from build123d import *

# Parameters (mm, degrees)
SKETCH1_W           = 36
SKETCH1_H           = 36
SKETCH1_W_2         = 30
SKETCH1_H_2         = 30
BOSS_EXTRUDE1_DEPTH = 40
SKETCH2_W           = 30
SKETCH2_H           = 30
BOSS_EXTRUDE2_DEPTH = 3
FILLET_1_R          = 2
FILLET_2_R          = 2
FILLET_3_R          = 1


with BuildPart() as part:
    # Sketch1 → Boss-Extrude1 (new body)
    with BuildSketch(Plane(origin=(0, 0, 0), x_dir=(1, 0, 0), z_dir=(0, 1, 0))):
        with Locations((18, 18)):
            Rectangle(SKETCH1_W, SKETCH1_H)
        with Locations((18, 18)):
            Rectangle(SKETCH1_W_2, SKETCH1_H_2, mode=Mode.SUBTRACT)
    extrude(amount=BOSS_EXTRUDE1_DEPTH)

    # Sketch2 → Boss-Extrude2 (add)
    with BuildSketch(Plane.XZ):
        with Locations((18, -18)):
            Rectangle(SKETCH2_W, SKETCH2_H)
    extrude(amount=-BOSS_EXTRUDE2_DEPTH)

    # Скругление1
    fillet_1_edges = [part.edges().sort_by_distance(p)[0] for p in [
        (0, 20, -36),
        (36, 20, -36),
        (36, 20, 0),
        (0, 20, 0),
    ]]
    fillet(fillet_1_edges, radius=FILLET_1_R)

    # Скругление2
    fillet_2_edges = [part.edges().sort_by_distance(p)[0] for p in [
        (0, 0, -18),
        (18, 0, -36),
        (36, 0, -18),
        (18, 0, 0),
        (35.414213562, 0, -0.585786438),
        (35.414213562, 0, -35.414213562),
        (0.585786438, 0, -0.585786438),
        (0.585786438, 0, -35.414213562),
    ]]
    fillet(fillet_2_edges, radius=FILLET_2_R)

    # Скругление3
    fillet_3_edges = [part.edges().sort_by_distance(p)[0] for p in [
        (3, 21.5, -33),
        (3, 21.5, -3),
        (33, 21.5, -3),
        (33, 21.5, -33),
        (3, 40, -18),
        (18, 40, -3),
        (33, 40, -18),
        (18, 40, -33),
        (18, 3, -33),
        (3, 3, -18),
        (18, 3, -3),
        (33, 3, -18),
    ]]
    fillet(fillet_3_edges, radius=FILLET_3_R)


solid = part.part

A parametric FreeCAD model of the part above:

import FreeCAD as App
import Part
import Sketcher

V = App.Vector


def edges_at(feature, points):
    """Names of the edges that pass closest to the given points."""
    edges = feature.Shape.Edges
    near = lambda p: min(range(len(edges)), key=lambda i: edges[i].distToShape(Part.Vertex(*p))[0])
    return sorted({f"Edge{near(p) + 1}" for p in points})


def add_polygon(sketch, points):
    """Adds a closed chain of lines whose ends are joined by coincident constraints."""
    first, n = sketch.GeometryCount, len(points)
    for a, b in zip(points, points[1:] + points[:1]):
        sketch.addGeometry(Part.LineSegment(App.Vector(*a, 0), App.Vector(*b, 0)), False)
    for i in range(n):
        sketch.addConstraint(Sketcher.Constraint("Coincident", first + i, 2, first + (i + 1) % n, 1))

doc = App.newDocument("Part")
params = doc.addObject("Spreadsheet::Sheet", "Params")
for row, (alias, value) in enumerate([
    ("sketch1_width", "36 mm"),
    ("sketch1_width2", "30 mm"),
    ("pad1_length", "40 mm"),
    ("sketch2_width", "30 mm"),
    ("pad2_length", "3 mm"),
    ("fillet_radius", "2 mm"),
    ("fillet2_radius", "2 mm"),
    ("fillet3_radius", "1 mm"),
], start=1):
    params.set(f"A{row}", alias)
    params.set(f"B{row}", "=" + value)
    params.setAlias(f"B{row}", alias)

body = doc.addObject("PartDesign::Body", "Body")

# Sketch on XZ plane
sketch1 = doc.addObject("Sketcher::SketchObject", "Sketch")
body.addObject(sketch1)
sketch1.AttachmentSupport = (doc.XZ_Plane, [""])
sketch1.MapMode = "FlatFace"
add_polygon(sketch1, [(0, -36), (0, 0), (36, 0), (36, -36)])  # lines 0-3
add_polygon(sketch1, [(33, -3), (3, -3), (3, -33), (33, -33)])  # lines 4-7
sketch1.addConstraint([
    Sketcher.Constraint("Vertical", 0),
    Sketcher.Constraint("Horizontal", 1),
    Sketcher.Constraint("Vertical", 2),
    Sketcher.Constraint("Horizontal", 3),
    Sketcher.Constraint("Horizontal", 4),
    Sketcher.Constraint("Vertical", 5),
    Sketcher.Constraint("Horizontal", 6),
    Sketcher.Constraint("Vertical", 7),
    Sketcher.Constraint("Coincident", 0, 2, -1, 1),
    Sketcher.Constraint("Equal", 3, 0),
    Sketcher.Constraint("Equal", 6, 5),
    Sketcher.Constraint("DistanceX", 1, 1, 1, 2, 36.0),
    Sketcher.Constraint("DistanceX", 4, 2, 4, 1, 30.0),
    Sketcher.Constraint("DistanceX", -1, 1, 4, 2, 3.0),
    Sketcher.Constraint("DistanceY", 4, 2, -1, 1, 3.0),
])
sketch1.setExpression("Constraints[19]", "Params.sketch1_width")
sketch1.setExpression("Constraints[20]", "Params.sketch1_width2")
pad1 = doc.addObject("PartDesign::Pad", "Pad")
body.addObject(pad1)
pad1.Profile = sketch1
pad1.setExpression("Length", "Params.pad1_length")
pad1.Reversed = True

# Sketch on XZ plane
sketch2 = doc.addObject("Sketcher::SketchObject", "Sketch001")
body.addObject(sketch2)
sketch2.AttachmentSupport = (doc.XZ_Plane, [""])
sketch2.MapMode = "FlatFace"
add_polygon(sketch2, [(3, -3), (3, -33), (33, -33), (33, -3)])  # lines 0-3
sketch2.addConstraint([
    Sketcher.Constraint("Vertical", 0),
    Sketcher.Constraint("Horizontal", 1),
    Sketcher.Constraint("Vertical", 2),
    Sketcher.Constraint("Horizontal", 3),
    Sketcher.Constraint("Equal", 3, 0),
    Sketcher.Constraint("DistanceX", 1, 1, 1, 2, 30.0),
    Sketcher.Constraint("DistanceX", -1, 1, 0, 2, 3.0),
    Sketcher.Constraint("DistanceY", 0, 2, -1, 1, 33.0),
])
sketch2.setExpression("Constraints[9]", "Params.sketch2_width")
pad2 = doc.addObject("PartDesign::Pad", "Pad001")
body.addObject(pad2)
pad2.Profile = sketch2
pad2.setExpression("Length", "Params.pad2_length")
pad2.Reversed = True
doc.recompute()

fillet = doc.addObject("PartDesign::Fillet", "Fillet")
body.addObject(fillet)
fillet.Base = (pad2, edges_at(pad2, [
    (0, 20, -36),
    (36, 20, -36),
    (36, 20, 0),
    (0, 20, 0),
]))
fillet.setExpression("Radius", "Params.fillet_radius")
doc.recompute()

fillet2 = doc.addObject("PartDesign::Fillet", "Fillet001")
body.addObject(fillet2)
fillet2.Base = (fillet, edges_at(fillet, [
    (0, 0, -18),
    (18, 0, -36),
    (36, 0, -18),
    (18, 0, 0),
    (35.414, 0, -0.586),
    (35.414, 0, -35.414),
    (0.586, 0, -0.586),
    (0.586, 0, -35.414),
]))
fillet2.setExpression("Radius", "Params.fillet2_radius")
doc.recompute()

fillet3 = doc.addObject("PartDesign::Fillet", "Fillet002")
body.addObject(fillet3)
fillet3.Base = (fillet2, edges_at(fillet2, [
    (3, 21.5, -33),
    (3, 21.5, -3),
    (33, 21.5, -3),
    (33, 21.5, -33),
    (3, 40, -18),
    (18, 40, -3),
    (33, 40, -18),
    (18, 40, -33),
    (18, 3, -33),
    (3, 3, -18),
    (18, 3, -3),
    (33, 3, -18),
]))
fillet3.setExpression("Radius", "Params.fillet3_radius")

doc.recompute()
